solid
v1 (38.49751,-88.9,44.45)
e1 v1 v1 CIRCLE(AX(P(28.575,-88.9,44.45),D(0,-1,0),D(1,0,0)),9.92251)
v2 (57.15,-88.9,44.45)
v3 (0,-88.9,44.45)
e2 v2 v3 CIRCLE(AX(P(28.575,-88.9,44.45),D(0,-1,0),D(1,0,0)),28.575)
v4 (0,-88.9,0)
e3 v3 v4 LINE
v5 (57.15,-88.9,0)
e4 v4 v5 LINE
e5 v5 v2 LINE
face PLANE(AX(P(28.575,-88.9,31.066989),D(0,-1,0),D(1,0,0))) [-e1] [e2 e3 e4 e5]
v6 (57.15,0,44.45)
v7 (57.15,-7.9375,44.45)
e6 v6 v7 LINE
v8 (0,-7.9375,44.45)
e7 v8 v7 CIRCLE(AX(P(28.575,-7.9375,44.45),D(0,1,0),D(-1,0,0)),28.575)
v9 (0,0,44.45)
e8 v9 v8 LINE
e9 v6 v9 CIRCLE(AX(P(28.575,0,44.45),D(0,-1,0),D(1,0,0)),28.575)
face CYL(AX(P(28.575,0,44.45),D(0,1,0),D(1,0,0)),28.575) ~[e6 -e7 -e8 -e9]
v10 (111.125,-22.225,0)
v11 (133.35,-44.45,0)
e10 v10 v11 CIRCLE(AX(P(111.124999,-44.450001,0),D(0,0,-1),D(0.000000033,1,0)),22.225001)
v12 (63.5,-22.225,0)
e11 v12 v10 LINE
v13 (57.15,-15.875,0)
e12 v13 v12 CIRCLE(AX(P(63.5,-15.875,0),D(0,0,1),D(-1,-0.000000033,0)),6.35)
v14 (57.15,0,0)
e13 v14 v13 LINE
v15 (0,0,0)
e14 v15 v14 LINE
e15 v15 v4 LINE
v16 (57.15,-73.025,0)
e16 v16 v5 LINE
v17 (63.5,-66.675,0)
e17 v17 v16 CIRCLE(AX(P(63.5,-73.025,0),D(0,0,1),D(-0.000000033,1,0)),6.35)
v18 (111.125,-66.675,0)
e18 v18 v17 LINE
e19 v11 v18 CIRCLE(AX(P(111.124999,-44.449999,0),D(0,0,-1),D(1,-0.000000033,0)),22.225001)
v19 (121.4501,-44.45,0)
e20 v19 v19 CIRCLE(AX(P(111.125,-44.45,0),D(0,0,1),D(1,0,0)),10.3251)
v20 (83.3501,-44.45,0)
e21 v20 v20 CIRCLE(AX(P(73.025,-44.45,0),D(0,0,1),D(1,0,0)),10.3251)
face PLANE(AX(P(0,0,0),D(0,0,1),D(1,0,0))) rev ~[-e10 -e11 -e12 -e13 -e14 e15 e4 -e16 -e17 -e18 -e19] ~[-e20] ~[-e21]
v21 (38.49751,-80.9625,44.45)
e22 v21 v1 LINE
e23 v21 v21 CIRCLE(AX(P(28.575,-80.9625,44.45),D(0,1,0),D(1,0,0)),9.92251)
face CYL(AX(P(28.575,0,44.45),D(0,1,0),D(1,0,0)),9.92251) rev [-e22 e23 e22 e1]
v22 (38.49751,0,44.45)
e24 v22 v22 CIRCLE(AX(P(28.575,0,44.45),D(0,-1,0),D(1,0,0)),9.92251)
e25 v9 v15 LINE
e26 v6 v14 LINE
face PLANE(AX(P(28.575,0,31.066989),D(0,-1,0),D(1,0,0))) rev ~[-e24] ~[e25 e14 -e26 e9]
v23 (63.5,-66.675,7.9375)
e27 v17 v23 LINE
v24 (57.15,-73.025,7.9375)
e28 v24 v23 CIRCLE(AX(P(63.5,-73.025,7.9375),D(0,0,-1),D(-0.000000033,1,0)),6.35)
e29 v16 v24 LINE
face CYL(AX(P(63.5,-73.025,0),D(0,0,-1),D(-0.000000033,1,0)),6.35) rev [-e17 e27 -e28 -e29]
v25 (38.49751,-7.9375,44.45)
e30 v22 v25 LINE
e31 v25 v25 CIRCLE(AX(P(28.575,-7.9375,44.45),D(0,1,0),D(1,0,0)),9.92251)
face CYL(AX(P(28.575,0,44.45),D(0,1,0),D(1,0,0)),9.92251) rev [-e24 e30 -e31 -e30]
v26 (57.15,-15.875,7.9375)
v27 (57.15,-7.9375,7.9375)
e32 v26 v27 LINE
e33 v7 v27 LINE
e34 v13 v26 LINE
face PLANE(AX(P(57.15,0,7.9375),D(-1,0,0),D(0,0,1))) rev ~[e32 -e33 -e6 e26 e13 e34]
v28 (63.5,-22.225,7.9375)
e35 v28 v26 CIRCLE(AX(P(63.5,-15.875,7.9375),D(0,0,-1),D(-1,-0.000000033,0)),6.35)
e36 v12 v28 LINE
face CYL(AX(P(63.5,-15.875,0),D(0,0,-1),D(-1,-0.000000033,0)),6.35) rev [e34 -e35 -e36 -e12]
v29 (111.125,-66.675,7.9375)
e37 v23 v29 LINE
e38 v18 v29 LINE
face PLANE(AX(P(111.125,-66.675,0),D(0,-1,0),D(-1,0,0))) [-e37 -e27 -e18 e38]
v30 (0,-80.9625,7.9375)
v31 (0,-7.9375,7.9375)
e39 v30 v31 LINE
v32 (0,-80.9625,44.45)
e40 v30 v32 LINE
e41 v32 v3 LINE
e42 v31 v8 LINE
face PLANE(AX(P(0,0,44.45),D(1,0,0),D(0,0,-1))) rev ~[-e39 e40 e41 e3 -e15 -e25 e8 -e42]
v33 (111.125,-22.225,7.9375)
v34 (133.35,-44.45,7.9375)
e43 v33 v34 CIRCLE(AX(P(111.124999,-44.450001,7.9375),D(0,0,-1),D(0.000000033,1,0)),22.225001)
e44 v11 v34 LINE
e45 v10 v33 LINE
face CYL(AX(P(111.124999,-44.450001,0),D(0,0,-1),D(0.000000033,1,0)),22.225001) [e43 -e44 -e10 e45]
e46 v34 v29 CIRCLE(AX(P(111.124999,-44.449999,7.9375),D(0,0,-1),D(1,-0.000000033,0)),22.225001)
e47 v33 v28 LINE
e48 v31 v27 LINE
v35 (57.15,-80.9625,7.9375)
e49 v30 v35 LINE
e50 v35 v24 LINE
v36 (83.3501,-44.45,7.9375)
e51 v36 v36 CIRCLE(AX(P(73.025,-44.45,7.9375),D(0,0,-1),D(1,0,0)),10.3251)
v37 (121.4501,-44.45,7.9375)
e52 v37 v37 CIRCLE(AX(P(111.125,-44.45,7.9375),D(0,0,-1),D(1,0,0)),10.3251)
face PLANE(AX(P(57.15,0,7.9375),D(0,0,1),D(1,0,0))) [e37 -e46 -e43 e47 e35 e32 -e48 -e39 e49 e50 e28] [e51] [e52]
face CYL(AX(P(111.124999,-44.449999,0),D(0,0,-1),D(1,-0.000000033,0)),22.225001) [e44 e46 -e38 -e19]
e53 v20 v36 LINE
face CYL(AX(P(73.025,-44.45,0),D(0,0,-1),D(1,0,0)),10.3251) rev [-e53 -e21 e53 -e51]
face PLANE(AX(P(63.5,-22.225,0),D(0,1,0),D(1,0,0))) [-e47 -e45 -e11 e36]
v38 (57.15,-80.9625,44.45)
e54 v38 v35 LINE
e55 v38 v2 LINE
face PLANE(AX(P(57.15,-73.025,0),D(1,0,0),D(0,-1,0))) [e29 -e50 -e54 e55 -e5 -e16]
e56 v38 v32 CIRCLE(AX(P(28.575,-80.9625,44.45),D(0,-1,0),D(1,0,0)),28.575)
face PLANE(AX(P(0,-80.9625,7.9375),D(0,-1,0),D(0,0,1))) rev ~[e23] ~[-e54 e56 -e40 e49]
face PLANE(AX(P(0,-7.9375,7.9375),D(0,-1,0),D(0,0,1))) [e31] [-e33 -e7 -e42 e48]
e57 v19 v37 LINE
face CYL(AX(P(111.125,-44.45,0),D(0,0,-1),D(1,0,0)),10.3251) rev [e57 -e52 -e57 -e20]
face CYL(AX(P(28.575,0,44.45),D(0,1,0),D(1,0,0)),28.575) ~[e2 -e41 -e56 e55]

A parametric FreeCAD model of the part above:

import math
import FreeCAD as App
import Part
import Sketcher
Q = App.Units.Quantity

doc = App.newDocument("Part")
body = doc.addObject("PartDesign::Body", "Body")

# Sketch on XZ plane
sketch1 = body.newObject("Sketcher::SketchObject", "Sketch")
sketch1.AttachmentSupport = (doc.getObject("XZ_Plane"), [""])
sketch1.MapMode = "FlatFace"
sketch1.addGeometry([
    Part.ArcOfCircle(Part.Circle(App.Vector(29, 44, 0), App.Vector(0, 0, 1), 29), math.radians(0), math.radians(180)),  # 0
    Part.LineSegment(App.Vector(0, 44, 0), App.Vector(0, 0, 0)),  # 1
    Part.LineSegment(App.Vector(0, 0, 0), App.Vector(133, 0, 0)),  # 2
    Part.LineSegment(App.Vector(133, 0, 0), App.Vector(133, 8, 0)),  # 3
    Part.LineSegment(App.Vector(133, 8, 0), App.Vector(57, 8, 0)),  # 4
    Part.LineSegment(App.Vector(57, 8, 0), App.Vector(57, 44, 0)),  # 5
    Part.Circle(App.Vector(29, 44, 0), App.Vector(0, 0, 1), 10),  # 6
], False)
sketch1.addConstraint([
    Sketcher.Constraint("Tangent", 0, 2, 1, 1),
    Sketcher.Constraint("Coincident", 1, 2, 2, 1),
    Sketcher.Constraint("Coincident", 2, 2, 3, 1),
    Sketcher.Constraint("Coincident", 3, 2, 4, 1),
    Sketcher.Constraint("Coincident", 4, 2, 5, 1),
    Sketcher.Constraint("Tangent", 5, 2, 0, 1),
    Sketcher.Constraint("Vertical", 1),
    Sketcher.Constraint("Horizontal", 2),
    Sketcher.Constraint("Vertical", 3),
    Sketcher.Constraint("Horizontal", 4),
    Sketcher.Constraint("Vertical", 5),
    Sketcher.Constraint("Coincident", 1, 2, -1, 1),
    Sketcher.Constraint("Coincident", 6, 3, 0, 3),
    Sketcher.Constraint("DistanceX", 4, 2, 4, 1, Q("3 in")),
    Sketcher.Constraint("Radius", 0, Q("1.125 in")),
    Sketcher.Constraint("Diameter", 6, Q("0.7813 in")),
    Sketcher.Constraint("DistanceY", 1, 2, 1, 1, Q("1.75 in")),
    Sketcher.Constraint("DistanceY", 3, 1, 3, 2, Q("0.3125 in")),
])
pad1 = body.newObject("PartDesign::Pad", "Pad")
pad1.Profile = sketch1
pad1.Length = Q("3.5 in")

# Sketch on YZ plane
sketch2 = body.newObject("Sketcher::SketchObject", "Sketch001")
sketch2.AttachmentSupport = (doc.getObject("YZ_Plane"), [""])
sketch2.MapMode = "FlatFace"
sketch2.addGeometry([
    Part.LineSegment(App.Vector(-81, 73, 0), App.Vector(-81, 8, 0)),
    Part.LineSegment(App.Vector(-81, 8, 0), App.Vector(-8, 8, 0)),
    Part.LineSegment(App.Vector(-8, 8, 0), App.Vector(-8, 73, 0)),
    Part.LineSegment(App.Vector(-8, 73, 0), App.Vector(-81, 73, 0)),
], False)
sketch2.addConstraint([
    Sketcher.Constraint("Coincident", 0, 2, 1, 1),
    Sketcher.Constraint("Coincident", 1, 2, 2, 1),
    Sketcher.Constraint("Coincident", 2, 2, 3, 1),
    Sketcher.Constraint("Coincident", 3, 2, 0, 1),
    Sketcher.Constraint("Vertical", 0),
    Sketcher.Constraint("Horizontal", 1),
    Sketcher.Constraint("Vertical", 2),
    Sketcher.Constraint("Horizontal", 3),
    Sketcher.Constraint("DistanceX", 1, 1, 1, 2, Q("2.875 in")),
    Sketcher.Constraint("DistanceY", 0, 2, 0, 1, Q("2.5625 in")),
    Sketcher.Constraint("DistanceX", 0, 2, -1, 1, Q("3.1875 in")),
    Sketcher.Constraint("DistanceY", -1, 1, 0, 2, Q("0.3125 in")),
])
pocket1 = body.newObject("PartDesign::Pocket", "Pocket")
pocket1.Profile = sketch2
pocket1.Length = Q("2.5 in")
pocket1.Reversed = True

# Sketch on XY plane
sketch3 = body.newObject("Sketcher::SketchObject", "Sketch002")
sketch3.AttachmentSupport = (doc.getObject("XY_Plane"), [""])
sketch3.MapMode = "FlatFace"
sketch3.addGeometry([
    Part.Circle(App.Vector(73, -44, 0), App.Vector(0, 0, 1), 10),  # 0
    Part.Circle(App.Vector(111, -44, 0), App.Vector(0, 0, 1), 10),  # 1
    Part.LineSegment(App.Vector(57, -89, 0), App.Vector(133, -89, 0)),  # 2
    Part.LineSegment(App.Vector(133, -89, 0), App.Vector(133, -44, 0)),  # 3
    Part.ArcOfCircle(Part.Circle(App.Vector(111, -44, 0), App.Vector(0, 0, 1), 22), math.radians(-90), math.radians(0)),  # 4
    Part.LineSegment(App.Vector(111, -67, 0), App.Vector(64, -67, 0)),  # 5
    Part.ArcOfCircle(Part.Circle(App.Vector(64, -73, 0), App.Vector(0, 0, 1), 6), math.radians(90), math.radians(180)),  # 6
    Part.LineSegment(App.Vector(57, -73, 0), App.Vector(57, -89, 0)),  # 7
    Part.ArcOfCircle(Part.Circle(App.Vector(111, -44, 0), App.Vector(0, 0, 1), 22), math.radians(0), math.radians(90)),  # 8
    Part.LineSegment(App.Vector(133, -44, 0), App.Vector(133, 0, 0)),  # 9
    Part.LineSegment(App.Vector(133, 0, 0), App.Vector(57, 0, 0)),  # 10
    Part.LineSegment(App.Vector(57, 0, 0), App.Vector(57, -16, 0)),  # 11
    Part.ArcOfCircle(Part.Circle(App.Vector(64, -16, 0), App.Vector(0, 0, 1), 6), math.radians(-180), math.radians(-90)),  # 12
    Part.LineSegment(App.Vector(64, -22, 0), App.Vector(111, -22, 0)),  # 13
], False)
sketch3.addConstraint([
    Sketcher.Constraint("Coincident", 2, 2, 3, 1),
    Sketcher.Constraint("Tangent", 3, 2, 4, 2),
    Sketcher.Constraint("Tangent", 4, 1, 5, 1),
    Sketcher.Constraint("Tangent", 5, 2, 6, 1),
    Sketcher.Constraint("Tangent", 6, 2, 7, 1),
    Sketcher.Constraint("Coincident", 7, 2, 2, 1),
    Sketcher.Constraint("Tangent", 8, 1, 9, 1),
    Sketcher.Constraint("Coincident", 9, 2, 10, 1),
    Sketcher.Constraint("Coincident", 10, 2, 11, 1),
    Sketcher.Constraint("Tangent", 11, 2, 12, 1),
    Sketcher.Constraint("Tangent", 12, 2, 13, 1),
    Sketcher.Constraint("Tangent", 13, 2, 8, 2),
    Sketcher.Constraint("Horizontal", 2),
    Sketcher.Constraint("Vertical", 3),
    Sketcher.Constraint("Horizontal", 5),
    Sketcher.Constraint("Vertical", 7),
    Sketcher.Constraint("Vertical", 9),
    Sketcher.Constraint("Horizontal", 10),
    Sketcher.Constraint("Vertical", 11),
    Sketcher.Constraint("Horizontal", 13),
    Sketcher.Constraint("Coincident", 4, 3, 1, 3),
    Sketcher.Constraint("Coincident", 8, 3, 1, 3),
    Sketcher.Constraint("Equal", 0, 1),
    Sketcher.Constraint("Equal", 4, 8),
    Sketcher.Constraint("Equal", 6, 12),
    Sketcher.Constraint("PointOnObject", 9, 2, -1),
    Sketcher.Constraint("Horizontal", 0, 3, 1, 3),
    Sketcher.Constraint("Vertical", 6, 3, 12, 3),
    Sketcher.Constraint("Equal", 3, 9),
    Sketcher.Constraint("DistanceX", 2, 1, 2, 2, Q("3 in")),
    Sketcher.Constraint("Radius", 6, Q("0.25 in")),
    Sketcher.Constraint("Diameter", 0, Q("0.813 in")),
    Sketcher.Constraint("Radius", 4, Q("0.875 in")),
    Sketcher.Constraint("DistanceY", 3, 1, 3, 2, Q("1.75 in")),
    Sketcher.Constraint("DistanceX", -1, 1, 6, 3, Q("2.5 in")),
    Sketcher.Constraint("DistanceX", 0, 3, 1, 3, Q("1.5 in")),
])
pocket2 = body.newObject("PartDesign::Pocket", "Pocket001")
pocket2.Profile = sketch3
pocket2.Length = Q("1 in")
pocket2.Reversed = True

doc.recompute()
